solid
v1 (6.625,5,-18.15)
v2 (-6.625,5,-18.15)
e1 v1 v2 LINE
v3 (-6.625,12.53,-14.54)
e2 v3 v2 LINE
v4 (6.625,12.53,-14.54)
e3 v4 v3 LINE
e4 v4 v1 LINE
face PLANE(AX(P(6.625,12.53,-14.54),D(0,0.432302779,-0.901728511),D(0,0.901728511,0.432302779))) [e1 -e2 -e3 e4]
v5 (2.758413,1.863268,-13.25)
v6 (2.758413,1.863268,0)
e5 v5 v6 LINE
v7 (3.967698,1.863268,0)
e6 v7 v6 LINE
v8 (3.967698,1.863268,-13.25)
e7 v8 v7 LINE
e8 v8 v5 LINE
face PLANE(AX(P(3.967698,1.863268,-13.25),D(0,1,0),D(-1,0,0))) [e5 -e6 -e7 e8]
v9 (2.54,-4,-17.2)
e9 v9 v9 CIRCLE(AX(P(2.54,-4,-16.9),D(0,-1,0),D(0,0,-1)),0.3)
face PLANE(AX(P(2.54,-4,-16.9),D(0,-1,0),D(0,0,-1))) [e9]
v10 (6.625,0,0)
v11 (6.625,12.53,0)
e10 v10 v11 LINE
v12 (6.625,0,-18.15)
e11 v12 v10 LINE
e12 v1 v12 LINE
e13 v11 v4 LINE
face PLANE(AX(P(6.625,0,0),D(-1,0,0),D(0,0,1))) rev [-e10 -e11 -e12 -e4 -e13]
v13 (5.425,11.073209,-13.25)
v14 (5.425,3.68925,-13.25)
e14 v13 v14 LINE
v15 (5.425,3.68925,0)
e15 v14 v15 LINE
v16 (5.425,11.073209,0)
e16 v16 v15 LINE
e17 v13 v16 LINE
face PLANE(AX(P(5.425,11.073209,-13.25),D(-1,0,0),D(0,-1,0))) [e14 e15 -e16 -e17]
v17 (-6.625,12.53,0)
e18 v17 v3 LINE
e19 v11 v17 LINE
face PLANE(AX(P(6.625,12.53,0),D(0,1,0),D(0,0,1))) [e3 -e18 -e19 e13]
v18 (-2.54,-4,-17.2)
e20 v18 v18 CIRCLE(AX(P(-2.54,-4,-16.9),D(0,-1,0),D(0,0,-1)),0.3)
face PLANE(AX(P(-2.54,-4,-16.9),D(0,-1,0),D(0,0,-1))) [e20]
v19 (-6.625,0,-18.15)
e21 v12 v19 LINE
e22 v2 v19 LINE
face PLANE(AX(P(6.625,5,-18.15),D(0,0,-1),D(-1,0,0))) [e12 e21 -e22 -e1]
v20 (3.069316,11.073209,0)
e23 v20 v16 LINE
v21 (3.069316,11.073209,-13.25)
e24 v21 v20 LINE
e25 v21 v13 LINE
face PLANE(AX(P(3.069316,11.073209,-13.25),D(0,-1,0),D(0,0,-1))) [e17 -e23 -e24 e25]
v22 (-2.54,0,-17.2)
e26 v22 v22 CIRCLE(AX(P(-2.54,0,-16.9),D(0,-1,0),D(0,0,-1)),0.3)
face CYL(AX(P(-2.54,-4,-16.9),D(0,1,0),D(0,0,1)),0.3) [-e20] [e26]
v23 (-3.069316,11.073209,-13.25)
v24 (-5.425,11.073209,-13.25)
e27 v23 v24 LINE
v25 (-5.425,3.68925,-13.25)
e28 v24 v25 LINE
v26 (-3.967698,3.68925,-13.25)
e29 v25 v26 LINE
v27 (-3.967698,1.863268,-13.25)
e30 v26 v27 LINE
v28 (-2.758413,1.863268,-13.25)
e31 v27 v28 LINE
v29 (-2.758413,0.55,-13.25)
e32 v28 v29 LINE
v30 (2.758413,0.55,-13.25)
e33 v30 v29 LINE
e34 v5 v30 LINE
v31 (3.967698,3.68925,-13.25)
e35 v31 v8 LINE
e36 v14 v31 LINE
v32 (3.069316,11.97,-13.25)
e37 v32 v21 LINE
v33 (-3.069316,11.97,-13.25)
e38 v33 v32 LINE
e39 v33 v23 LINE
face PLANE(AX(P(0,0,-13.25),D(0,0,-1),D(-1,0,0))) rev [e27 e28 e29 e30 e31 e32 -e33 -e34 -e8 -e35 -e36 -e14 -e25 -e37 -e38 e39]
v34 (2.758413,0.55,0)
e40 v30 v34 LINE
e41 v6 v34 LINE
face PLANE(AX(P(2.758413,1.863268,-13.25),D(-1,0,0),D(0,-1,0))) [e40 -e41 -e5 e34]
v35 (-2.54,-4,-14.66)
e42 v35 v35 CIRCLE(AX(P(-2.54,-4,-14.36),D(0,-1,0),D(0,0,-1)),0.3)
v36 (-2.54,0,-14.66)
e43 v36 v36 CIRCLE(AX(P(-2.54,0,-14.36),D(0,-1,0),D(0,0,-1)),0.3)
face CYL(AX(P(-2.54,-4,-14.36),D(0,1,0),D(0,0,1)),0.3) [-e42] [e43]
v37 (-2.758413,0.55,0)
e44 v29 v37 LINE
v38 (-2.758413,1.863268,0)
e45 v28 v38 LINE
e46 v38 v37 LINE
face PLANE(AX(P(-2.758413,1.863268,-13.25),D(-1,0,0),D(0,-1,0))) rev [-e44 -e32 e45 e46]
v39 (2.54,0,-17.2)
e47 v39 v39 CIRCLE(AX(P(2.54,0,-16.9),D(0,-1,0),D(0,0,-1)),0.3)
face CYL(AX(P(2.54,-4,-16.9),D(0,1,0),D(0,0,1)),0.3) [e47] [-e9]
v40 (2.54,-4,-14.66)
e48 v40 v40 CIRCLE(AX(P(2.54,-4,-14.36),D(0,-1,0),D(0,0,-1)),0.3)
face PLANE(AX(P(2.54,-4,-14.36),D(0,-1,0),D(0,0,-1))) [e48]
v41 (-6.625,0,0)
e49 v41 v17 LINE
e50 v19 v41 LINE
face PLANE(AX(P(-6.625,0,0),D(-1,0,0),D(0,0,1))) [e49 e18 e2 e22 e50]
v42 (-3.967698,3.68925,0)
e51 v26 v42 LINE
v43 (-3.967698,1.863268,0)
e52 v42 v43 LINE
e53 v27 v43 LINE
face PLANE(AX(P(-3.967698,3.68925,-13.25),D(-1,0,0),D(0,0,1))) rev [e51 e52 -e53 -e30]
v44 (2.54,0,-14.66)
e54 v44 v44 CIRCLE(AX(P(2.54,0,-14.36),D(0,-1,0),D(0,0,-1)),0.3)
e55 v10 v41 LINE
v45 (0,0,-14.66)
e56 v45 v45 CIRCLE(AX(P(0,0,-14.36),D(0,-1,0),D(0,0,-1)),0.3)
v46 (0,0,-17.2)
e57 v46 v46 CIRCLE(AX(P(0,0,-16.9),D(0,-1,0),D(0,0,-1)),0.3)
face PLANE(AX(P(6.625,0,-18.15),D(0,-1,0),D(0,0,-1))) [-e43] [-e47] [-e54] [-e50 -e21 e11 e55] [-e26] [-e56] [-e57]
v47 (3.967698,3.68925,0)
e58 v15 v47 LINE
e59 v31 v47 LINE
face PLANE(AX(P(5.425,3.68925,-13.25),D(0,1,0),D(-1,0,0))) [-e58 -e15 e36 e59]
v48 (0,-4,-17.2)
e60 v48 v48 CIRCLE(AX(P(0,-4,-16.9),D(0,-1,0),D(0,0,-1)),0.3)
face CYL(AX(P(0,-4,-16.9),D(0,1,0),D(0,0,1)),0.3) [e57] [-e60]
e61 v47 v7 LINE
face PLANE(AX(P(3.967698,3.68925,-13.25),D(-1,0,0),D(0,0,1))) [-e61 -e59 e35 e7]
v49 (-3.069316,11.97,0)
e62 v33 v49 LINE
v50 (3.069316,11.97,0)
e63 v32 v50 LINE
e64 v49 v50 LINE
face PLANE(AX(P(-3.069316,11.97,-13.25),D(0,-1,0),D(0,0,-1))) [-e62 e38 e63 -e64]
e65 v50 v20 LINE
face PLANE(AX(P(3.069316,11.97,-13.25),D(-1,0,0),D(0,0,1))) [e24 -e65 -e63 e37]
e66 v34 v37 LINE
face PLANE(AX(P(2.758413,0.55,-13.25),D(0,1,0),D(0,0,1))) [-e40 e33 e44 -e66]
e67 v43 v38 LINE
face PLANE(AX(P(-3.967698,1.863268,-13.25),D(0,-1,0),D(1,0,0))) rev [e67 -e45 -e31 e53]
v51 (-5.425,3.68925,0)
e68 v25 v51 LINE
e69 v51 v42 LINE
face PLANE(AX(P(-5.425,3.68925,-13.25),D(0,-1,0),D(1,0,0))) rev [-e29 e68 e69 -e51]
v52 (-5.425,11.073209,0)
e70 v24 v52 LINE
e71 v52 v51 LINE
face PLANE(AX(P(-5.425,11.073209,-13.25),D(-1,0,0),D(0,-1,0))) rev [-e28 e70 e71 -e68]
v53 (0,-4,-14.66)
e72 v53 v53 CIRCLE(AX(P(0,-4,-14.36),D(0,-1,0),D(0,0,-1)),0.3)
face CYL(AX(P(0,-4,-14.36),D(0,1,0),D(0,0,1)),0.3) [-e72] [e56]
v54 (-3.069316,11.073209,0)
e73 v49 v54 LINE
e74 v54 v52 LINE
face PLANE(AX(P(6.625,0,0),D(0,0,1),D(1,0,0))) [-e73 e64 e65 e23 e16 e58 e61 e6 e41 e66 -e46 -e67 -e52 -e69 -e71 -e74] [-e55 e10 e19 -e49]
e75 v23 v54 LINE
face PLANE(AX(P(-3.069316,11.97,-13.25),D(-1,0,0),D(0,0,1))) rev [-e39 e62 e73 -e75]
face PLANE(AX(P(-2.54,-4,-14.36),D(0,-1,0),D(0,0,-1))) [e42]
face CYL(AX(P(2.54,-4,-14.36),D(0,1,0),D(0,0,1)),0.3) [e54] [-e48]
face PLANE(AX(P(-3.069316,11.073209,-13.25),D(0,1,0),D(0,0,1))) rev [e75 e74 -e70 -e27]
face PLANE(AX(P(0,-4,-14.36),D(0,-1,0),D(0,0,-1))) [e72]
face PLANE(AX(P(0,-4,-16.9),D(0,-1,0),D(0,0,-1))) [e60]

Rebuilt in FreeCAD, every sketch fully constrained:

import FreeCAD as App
import Part
import Sketcher


def add_polygon(sketch, points):
    """Adds a closed chain of lines whose ends are joined by coincident constraints."""
    first, n = sketch.GeometryCount, len(points)
    for a, b in zip(points, points[1:] + points[:1]):
        sketch.addGeometry(Part.LineSegment(App.Vector(*a, 0), App.Vector(*b, 0)), False)
    for i in range(n):
        sketch.addConstraint(Sketcher.Constraint("Coincident", first + i, 2, first + (i + 1) % n, 1))

doc = App.newDocument("Part")
body = doc.addObject("PartDesign::Body", "Body")

# Sketch on YZ plane
sketch1 = body.newObject("Sketcher::SketchObject", "Sketch")
sketch1.AttachmentSupport = (doc.getObject("YZ_Plane"), [""])
sketch1.MapMode = "FlatFace"
add_polygon(sketch1, [(13, 0), (0, 0), (0, -18), (5, -18), (13, -15)])  # lines 0-4
sketch1.addConstraint([
    Sketcher.Constraint("Horizontal", 0),
    Sketcher.Constraint("Vertical", 1),
    Sketcher.Constraint("Horizontal", 2),
    Sketcher.Constraint("Vertical", 4),
    Sketcher.Constraint("Coincident", 0, 2, -1, 1),
    Sketcher.Constraint("DistanceX", 2, 1, 2, 2, 5.0),
    Sketcher.Constraint("DistanceX", 0, 2, 0, 1, 12.53),
    Sketcher.Constraint("DistanceY", 1, 2, 1, 1, 18.15),
    Sketcher.Constraint("DistanceY", 4, 1, 4, 2, 14.54),
])
pad1 = body.newObject("PartDesign::Pad", "Pad")
pad1.Profile = sketch1
pad1.Length = 13.25
pad1.Midplane = True

# Sketch on XY plane
sketch2 = body.newObject("Sketcher::SketchObject", "Sketch001")
sketch2.AttachmentSupport = (doc.getObject("XY_Plane"), [""])
sketch2.MapMode = "FlatFace"
add_polygon(sketch2, [(-2.8, 1.9), (-2.8, 0.6), (2.8, 0.6), (2.8, 1.9), (4, 1.9), (4, 3.7), (5.4, 3.7), (5.4, 11.1), (3.1, 11.1), (3.1, 12), (-3.1, 12), (-3.1, 11.1), (-5.4, 11.1), (-5.4, 3.7), (-4, 3.7), (-4, 1.9)])  # lines 0-15
sketch2.addConstraint([
    Sketcher.Constraint("Vertical", 0),
    Sketcher.Constraint("Horizontal", 1),
    Sketcher.Constraint("Vertical", 2),
    Sketcher.Constraint("Horizontal", 3),
    Sketcher.Constraint("Vertical", 4),
    Sketcher.Constraint("Horizontal", 5),
    Sketcher.Constraint("Vertical", 6),
    Sketcher.Constraint("Horizontal", 7),
    Sketcher.Constraint("Vertical", 8),
    Sketcher.Constraint("Horizontal", 9),
    Sketcher.Constraint("Vertical", 10),
    Sketcher.Constraint("Horizontal", 11),
    Sketcher.Constraint("Vertical", 12),
    Sketcher.Constraint("Horizontal", 13),
    Sketcher.Constraint("Vertical", 14),
    Sketcher.Constraint("Horizontal", 15),
    Sketcher.Constraint("Symmetric", 7, 2, 10, 2, -2),
    Sketcher.Constraint("Symmetric", 5, 2, 12, 2, -2),
    Sketcher.Constraint("Symmetric", 3, 2, 14, 2, -2),
    Sketcher.Constraint("Equal", 3, 15),
    Sketcher.Constraint("DistanceY", -1, 1, 0, 2, 0.55),
    Sketcher.Constraint("DistanceY", -1, 1, 8, 2, 11.97),
    Sketcher.Constraint("DistanceX", 11, 2, 6, 2, 10.85),
    Sketcher.Constraint("DistanceX", 9, 2, 9, 1, 6.138632),
    Sketcher.Constraint("DistanceY", 0, 2, 0, 1, 1.313268),
    Sketcher.Constraint("DistanceY", 4, 1, 4, 2, 1.825981),
    Sketcher.Constraint("DistanceY", 6, 1, 6, 2, 7.38396),
    Sketcher.Constraint("DistanceX", 1, 1, 1, 2, 5.516825),
    Sketcher.Constraint("DistanceX", 3, 1, 3, 2, 1.209285),
])
pocket1 = body.newObject("PartDesign::Pocket", "Pocket")
pocket1.Profile = sketch2
pocket1.Length = 13.25

# Sketch on XZ plane
sketch3 = body.newObject("Sketcher::SketchObject", "Sketch002")
sketch3.AttachmentSupport = (doc.getObject("XZ_Plane"), [""])
sketch3.MapMode = "FlatFace"
sketch3.addGeometry([
    Part.Circle(App.Vector(2.54, -16.9, 0), App.Vector(0, 0, 1), 0.3),  # 0
    Part.Circle(App.Vector(0, -16.9, 0), App.Vector(0, 0, 1), 0.3),  # 1
    Part.Circle(App.Vector(-2.54, -16.9, 0), App.Vector(0, 0, 1), 0.3),  # 2
    Part.Circle(App.Vector(0, -14.36, 0), App.Vector(0, 0, 1), 0.3),  # 3
    Part.Circle(App.Vector(-2.54, -14.36, 0), App.Vector(0, 0, 1), 0.3),  # 4
    Part.Circle(App.Vector(2.54, -14.36, 0), App.Vector(0, 0, 1), 0.3),  # 5
], False)
sketch3.addConstraint([
    Sketcher.Constraint("Equal", 0, 1),
    Sketcher.Constraint("Equal", 1, 2),
    Sketcher.Constraint("Equal", 2, 3),
    Sketcher.Constraint("Equal", 3, 4),
    Sketcher.Constraint("Equal", 4, 5),
    Sketcher.Constraint("Symmetric", 0, 3, 2, 3, -2),
    Sketcher.Constraint("Symmetric", 4, 3, 5, 3, -2),
    Sketcher.Constraint("PointOnObject", 1, 3, -2),
    Sketcher.Constraint("PointOnObject", 3, 3, -2),
    Sketcher.Constraint("Horizontal", 0, 3, 1, 3),
    Sketcher.Constraint("Horizontal", 3, 3, 4, 3),
    Sketcher.Constraint("Vertical", 2, 3, 4, 3),
    Sketcher.Constraint("Diameter", 0, 0.6),
    Sketcher.Constraint("DistanceY", 0, 3, -1, 1, 16.9),
    Sketcher.Constraint("DistanceX", -1, 1, 0, 3, 2.54),
    Sketcher.Constraint("DistanceY", 3, 3, -1, 1, 14.36),
])
pad2 = body.newObject("PartDesign::Pad", "Pad001")
pad2.Profile = sketch3
pad2.Length = 4

doc.recompute()
